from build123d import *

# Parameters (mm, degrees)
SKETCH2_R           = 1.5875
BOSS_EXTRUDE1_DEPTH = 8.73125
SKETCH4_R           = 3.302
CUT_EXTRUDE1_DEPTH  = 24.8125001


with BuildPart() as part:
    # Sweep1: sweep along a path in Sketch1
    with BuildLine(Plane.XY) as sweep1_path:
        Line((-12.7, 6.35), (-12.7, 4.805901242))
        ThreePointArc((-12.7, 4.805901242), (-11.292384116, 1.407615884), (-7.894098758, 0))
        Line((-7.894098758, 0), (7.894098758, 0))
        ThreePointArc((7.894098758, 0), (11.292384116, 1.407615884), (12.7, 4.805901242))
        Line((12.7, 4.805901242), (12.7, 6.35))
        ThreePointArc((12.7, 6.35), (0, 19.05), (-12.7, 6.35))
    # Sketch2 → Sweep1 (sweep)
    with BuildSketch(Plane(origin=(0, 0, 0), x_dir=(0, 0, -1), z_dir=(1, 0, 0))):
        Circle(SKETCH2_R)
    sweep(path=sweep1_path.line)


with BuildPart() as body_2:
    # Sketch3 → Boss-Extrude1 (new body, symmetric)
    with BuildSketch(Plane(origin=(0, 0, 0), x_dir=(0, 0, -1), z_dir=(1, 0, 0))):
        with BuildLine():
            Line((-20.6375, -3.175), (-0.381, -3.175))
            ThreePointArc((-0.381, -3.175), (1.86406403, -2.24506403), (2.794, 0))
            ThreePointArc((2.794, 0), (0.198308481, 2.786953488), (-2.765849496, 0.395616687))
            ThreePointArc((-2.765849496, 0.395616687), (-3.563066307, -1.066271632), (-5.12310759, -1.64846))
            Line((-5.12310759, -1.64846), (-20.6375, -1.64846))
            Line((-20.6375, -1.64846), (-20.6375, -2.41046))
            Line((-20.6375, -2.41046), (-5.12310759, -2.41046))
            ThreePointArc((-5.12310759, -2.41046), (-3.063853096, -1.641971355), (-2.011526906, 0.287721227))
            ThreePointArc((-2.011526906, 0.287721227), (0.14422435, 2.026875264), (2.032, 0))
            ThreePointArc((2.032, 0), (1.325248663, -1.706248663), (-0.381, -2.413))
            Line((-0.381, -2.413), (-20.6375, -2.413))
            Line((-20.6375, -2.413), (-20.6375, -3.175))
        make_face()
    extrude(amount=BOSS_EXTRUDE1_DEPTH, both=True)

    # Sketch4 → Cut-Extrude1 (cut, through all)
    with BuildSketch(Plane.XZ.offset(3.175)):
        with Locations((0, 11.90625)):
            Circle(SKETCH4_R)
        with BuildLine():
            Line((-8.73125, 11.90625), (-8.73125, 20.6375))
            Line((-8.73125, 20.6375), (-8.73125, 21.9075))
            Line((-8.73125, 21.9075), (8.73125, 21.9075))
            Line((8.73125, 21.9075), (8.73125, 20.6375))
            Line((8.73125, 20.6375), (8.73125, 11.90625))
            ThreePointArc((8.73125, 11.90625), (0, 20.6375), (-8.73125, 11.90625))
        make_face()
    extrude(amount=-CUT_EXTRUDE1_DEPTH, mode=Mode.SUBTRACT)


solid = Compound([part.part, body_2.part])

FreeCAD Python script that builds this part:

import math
import FreeCAD as App
import Part
import Sketcher
Q = App.Units.Quantity

doc = App.newDocument("Part")
body = doc.addObject("PartDesign::Body", "Body")

# Sketch on YZ plane
sketch1 = body.newObject("Sketcher::SketchObject", "Sketch")
sketch1.AttachmentSupport = (doc.getObject("YZ_Plane"), [""])
sketch1.MapMode = "FlatFace"
sketch1.addGeometry(Part.Circle(App.Vector(0, 0, 0), App.Vector(0, 0, 1), 1.6), False)
sketch1.addConstraint([
    Sketcher.Constraint("Coincident", 0, 3, -1, 1),
    Sketcher.Constraint("Diameter", 0, Q("0.125 in")),
])

# Sketch on XY plane
sketch2 = body.newObject("Sketcher::SketchObject", "Sketch001")
sketch2.AttachmentSupport = (doc.getObject("XY_Plane"), [""])
sketch2.MapMode = "FlatFace"
sketch2.addGeometry([
    Part.LineSegment(App.Vector(-12.7, 6.3, 0), App.Vector(-12.7, 4.8, 0)),  # 0
    Part.ArcOfCircle(Part.Circle(App.Vector(-7.9, 4.8, 0), App.Vector(0, 0, 1), 4.8), math.radians(180), math.radians(270)),  # 1
    Part.LineSegment(App.Vector(-7.9, 0, 0), App.Vector(7.9, 0, 0)),  # 2
    Part.ArcOfCircle(Part.Circle(App.Vector(7.9, 4.8, 0), App.Vector(0, 0, 1), 4.8), math.radians(-90), math.radians(0)),  # 3
    Part.LineSegment(App.Vector(12.7, 4.8, 0), App.Vector(12.7, 6.3, 0)),  # 4
    Part.ArcOfCircle(Part.Circle(App.Vector(0, 6.3, 0), App.Vector(0, 0, 1), 12.7), math.radians(0), math.radians(180)),  # 5
], False)
sketch2.addConstraint([
    Sketcher.Constraint("Tangent", 0, 2, 1, 1),
    Sketcher.Constraint("Tangent", 1, 2, 2, 1),
    Sketcher.Constraint("Tangent", 2, 2, 3, 1),
    Sketcher.Constraint("Tangent", 3, 2, 4, 1),
    Sketcher.Constraint("Tangent", 4, 2, 5, 1),
    Sketcher.Constraint("Tangent", 5, 2, 0, 1),
    Sketcher.Constraint("Vertical", 0),
    Sketcher.Constraint("Horizontal", 2),
    Sketcher.Constraint("Vertical", 4),
    Sketcher.Constraint("Equal", 1, 3),
    Sketcher.Constraint("Symmetric", 1, 2, 2, 2, -1, 1),
    Sketcher.Constraint("Radius", 5, Q("0.5 in")),
    Sketcher.Constraint("DistanceY", -1, 1, 5, 3, Q("0.25 in")),
    Sketcher.Constraint("Radius", 1, 4.805901),
])
doc.recompute()

additivepipe = body.newObject("PartDesign::AdditivePipe", "AdditivePipe")
additivepipe.Profile = sketch1
additivepipe.Spine = (sketch2, ["Edge1", "Edge2", "Edge3", "Edge4", "Edge5", "Edge6"])
body2 = doc.addObject("PartDesign::Body", "Body001")

# Sketch on YZ plane
sketch3 = body2.newObject("Sketcher::SketchObject", "Sketch002")
sketch3.AttachmentSupport = (doc.getObject("YZ_Plane001"), [""])
sketch3.MapMode = "FlatFace"
sketch3.addGeometry([
    Part.LineSegment(App.Vector(-3.2, 20.6, 0), App.Vector(-3.2, 0.4, 0)),  # 0
    Part.ArcOfCircle(Part.Circle(App.Vector(0, 0.4, 0), App.Vector(0, 0, 1), 3.2), math.radians(-180), math.radians(-90)),  # 1
    Part.ArcOfCircle(Part.Circle(App.Vector(0, 0, 0), App.Vector(0, 0, 1), 2.8), math.radians(-90), math.radians(82)),  # 2
    Part.ArcOfCircle(Part.Circle(App.Vector(0.7, 5.1, 0), App.Vector(0, 0, 1), 2.4), math.radians(-180), math.radians(-98)),  # 3
    Part.LineSegment(App.Vector(-1.6, 5.1, 0), App.Vector(-1.6, 20.6, 0)),  # 4
    Part.LineSegment(App.Vector(-1.6, 20.6, 0), App.Vector(-2.4, 20.6, 0)),  # 5
    Part.LineSegment(App.Vector(-2.4, 20.6, 0), App.Vector(-2.4, 5.1, 0)),  # 6
    Part.ArcOfCircle(Part.Circle(App.Vector(0.7, 5.1, 0), App.Vector(0, 0, 1), 3.1), math.radians(180), math.radians(262)),  # 7
    Part.ArcOfCircle(Part.Circle(App.Vector(0, 0, 0), App.Vector(0, 0, 1), 2), math.radians(-90), math.radians(82)),  # 8
    Part.ArcOfCircle(Part.Circle(App.Vector(0, 0.4, 0), App.Vector(0, 0, 1), 2.4), math.radians(180), math.radians(270)),  # 9
    Part.LineSegment(App.Vector(-2.4, 0.4, 0), App.Vector(-2.4, 20.6, 0)),  # 10
    Part.LineSegment(App.Vector(-2.4, 20.6, 0), App.Vector(-3.2, 20.6, 0)),  # 11
], False)
sketch3.addConstraint([
    Sketcher.Constraint("Tangent", 0, 2, 1, 1),
    Sketcher.Constraint("Tangent", 1, 2, 2, 1),
    Sketcher.Constraint("Tangent", 2, 2, 3, 2),
    Sketcher.Constraint("Tangent", 3, 1, 4, 1),
    Sketcher.Constraint("Coincident", 4, 2, 5, 1),
    Sketcher.Constraint("Coincident", 5, 2, 6, 1),
    Sketcher.Constraint("Tangent", 6, 2, 7, 1),
    Sketcher.Constraint("Tangent", 7, 2, 8, 2),
    Sketcher.Constraint("Tangent", 8, 1, 9, 2),
    Sketcher.Constraint("Tangent", 9, 1, 10, 1),
    Sketcher.Constraint("Coincident", 10, 2, 11, 1),
    Sketcher.Constraint("Coincident", 11, 2, 0, 1),
    Sketcher.Constraint("Vertical", 0),
    Sketcher.Constraint("Vertical", 4),
    Sketcher.Constraint("Horizontal", 5),
    Sketcher.Constraint("Vertical", 6),
    Sketcher.Constraint("Vertical", 10),
    Sketcher.Constraint("Horizontal", 11),
    Sketcher.Constraint("Coincident", 2, 3, -1, 1),
    Sketcher.Constraint("Coincident", 8, 3, -1, 1),
    Sketcher.Constraint("Coincident", 7, 3, 3, 3),
    Sketcher.Constraint("Coincident", 9, 3, 1, 3),
    Sketcher.Constraint("PointOnObject", 1, 3, -2),
    Sketcher.Constraint("Horizontal", 5, 2, 10, 2),
    Sketcher.Constraint("Radius", 2, Q("0.11 in")),
    Sketcher.Constraint("Radius", 8, Q("0.08 in")),
    Sketcher.Constraint("Radius", 1, Q("0.125 in")),
    Sketcher.Constraint("Radius", 3, Q("0.09375 in")),
    Sketcher.Constraint("DistanceY", 0, 2, 0, 1, Q("0.7975 in")),
    Sketcher.Constraint("DistanceX", 3, 1, -1, 1, Q("0.0649 in")),
])
pad1 = body2.newObject("PartDesign::Pad", "Pad")
pad1.Profile = sketch3
pad1.Length = Q("0.6875 in")
pad1.Midplane = True

# Sketch on XZ plane
sketch4 = body2.newObject("Sketcher::SketchObject", "Sketch003")
sketch4.AttachmentSupport = (doc.getObject("XZ_Plane001"), [""])
sketch4.MapMode = "FlatFace"
sketch4.AttachmentOffset = App.Placement(App.Vector(0, 0, 0.125 * 25.4), App.Rotation())
sketch4.addGeometry([
    Part.Circle(App.Vector(0, 11.9, 0), App.Vector(0, 0, 1), 3.3),  # 0
    Part.LineSegment(App.Vector(-8.7, 21.9, 0), App.Vector(-8.7, 11.9, 0)),  # 1
    Part.ArcOfCircle(Part.Circle(App.Vector(0, 11.9, 0), App.Vector(0, 0, 1), 8.7), math.radians(0), math.radians(180)),  # 2
    Part.LineSegment(App.Vector(8.7, 11.9, 0), App.Vector(8.7, 21.9, 0)),  # 3
    Part.LineSegment(App.Vector(8.7, 21.9, 0), App.Vector(-8.7, 21.9, 0)),  # 4
], False)
sketch4.addConstraint([
    Sketcher.Constraint("Tangent", 1, 2, 2, 2),
    Sketcher.Constraint("Tangent", 2, 1, 3, 1),
    Sketcher.Constraint("Coincident", 3, 2, 4, 1),
    Sketcher.Constraint("Coincident", 4, 2, 1, 1),
    Sketcher.Constraint("Vertical", 1),
    Sketcher.Constraint("Vertical", 3),
    Sketcher.Constraint("Horizontal", 4),
    Sketcher.Constraint("Coincident", 2, 3, 0, 3),
    Sketcher.Constraint("PointOnObject", 0, 3, -2),
    Sketcher.Constraint("Diameter", 0, Q("0.26 in")),
    Sketcher.Constraint("Radius", 2, Q("0.34375 in")),
    Sketcher.Constraint("DistanceY", -1, 1, 0, 3, Q("0.46875 in")),
    Sketcher.Constraint("DistanceY", -1, 1, 3, 2, Q("0.8625 in")),
])
pocket1 = body2.newObject("PartDesign::Pocket", "Pocket")
pocket1.Profile = sketch4
pocket1.Type = "ThroughAll"

doc.recompute()
